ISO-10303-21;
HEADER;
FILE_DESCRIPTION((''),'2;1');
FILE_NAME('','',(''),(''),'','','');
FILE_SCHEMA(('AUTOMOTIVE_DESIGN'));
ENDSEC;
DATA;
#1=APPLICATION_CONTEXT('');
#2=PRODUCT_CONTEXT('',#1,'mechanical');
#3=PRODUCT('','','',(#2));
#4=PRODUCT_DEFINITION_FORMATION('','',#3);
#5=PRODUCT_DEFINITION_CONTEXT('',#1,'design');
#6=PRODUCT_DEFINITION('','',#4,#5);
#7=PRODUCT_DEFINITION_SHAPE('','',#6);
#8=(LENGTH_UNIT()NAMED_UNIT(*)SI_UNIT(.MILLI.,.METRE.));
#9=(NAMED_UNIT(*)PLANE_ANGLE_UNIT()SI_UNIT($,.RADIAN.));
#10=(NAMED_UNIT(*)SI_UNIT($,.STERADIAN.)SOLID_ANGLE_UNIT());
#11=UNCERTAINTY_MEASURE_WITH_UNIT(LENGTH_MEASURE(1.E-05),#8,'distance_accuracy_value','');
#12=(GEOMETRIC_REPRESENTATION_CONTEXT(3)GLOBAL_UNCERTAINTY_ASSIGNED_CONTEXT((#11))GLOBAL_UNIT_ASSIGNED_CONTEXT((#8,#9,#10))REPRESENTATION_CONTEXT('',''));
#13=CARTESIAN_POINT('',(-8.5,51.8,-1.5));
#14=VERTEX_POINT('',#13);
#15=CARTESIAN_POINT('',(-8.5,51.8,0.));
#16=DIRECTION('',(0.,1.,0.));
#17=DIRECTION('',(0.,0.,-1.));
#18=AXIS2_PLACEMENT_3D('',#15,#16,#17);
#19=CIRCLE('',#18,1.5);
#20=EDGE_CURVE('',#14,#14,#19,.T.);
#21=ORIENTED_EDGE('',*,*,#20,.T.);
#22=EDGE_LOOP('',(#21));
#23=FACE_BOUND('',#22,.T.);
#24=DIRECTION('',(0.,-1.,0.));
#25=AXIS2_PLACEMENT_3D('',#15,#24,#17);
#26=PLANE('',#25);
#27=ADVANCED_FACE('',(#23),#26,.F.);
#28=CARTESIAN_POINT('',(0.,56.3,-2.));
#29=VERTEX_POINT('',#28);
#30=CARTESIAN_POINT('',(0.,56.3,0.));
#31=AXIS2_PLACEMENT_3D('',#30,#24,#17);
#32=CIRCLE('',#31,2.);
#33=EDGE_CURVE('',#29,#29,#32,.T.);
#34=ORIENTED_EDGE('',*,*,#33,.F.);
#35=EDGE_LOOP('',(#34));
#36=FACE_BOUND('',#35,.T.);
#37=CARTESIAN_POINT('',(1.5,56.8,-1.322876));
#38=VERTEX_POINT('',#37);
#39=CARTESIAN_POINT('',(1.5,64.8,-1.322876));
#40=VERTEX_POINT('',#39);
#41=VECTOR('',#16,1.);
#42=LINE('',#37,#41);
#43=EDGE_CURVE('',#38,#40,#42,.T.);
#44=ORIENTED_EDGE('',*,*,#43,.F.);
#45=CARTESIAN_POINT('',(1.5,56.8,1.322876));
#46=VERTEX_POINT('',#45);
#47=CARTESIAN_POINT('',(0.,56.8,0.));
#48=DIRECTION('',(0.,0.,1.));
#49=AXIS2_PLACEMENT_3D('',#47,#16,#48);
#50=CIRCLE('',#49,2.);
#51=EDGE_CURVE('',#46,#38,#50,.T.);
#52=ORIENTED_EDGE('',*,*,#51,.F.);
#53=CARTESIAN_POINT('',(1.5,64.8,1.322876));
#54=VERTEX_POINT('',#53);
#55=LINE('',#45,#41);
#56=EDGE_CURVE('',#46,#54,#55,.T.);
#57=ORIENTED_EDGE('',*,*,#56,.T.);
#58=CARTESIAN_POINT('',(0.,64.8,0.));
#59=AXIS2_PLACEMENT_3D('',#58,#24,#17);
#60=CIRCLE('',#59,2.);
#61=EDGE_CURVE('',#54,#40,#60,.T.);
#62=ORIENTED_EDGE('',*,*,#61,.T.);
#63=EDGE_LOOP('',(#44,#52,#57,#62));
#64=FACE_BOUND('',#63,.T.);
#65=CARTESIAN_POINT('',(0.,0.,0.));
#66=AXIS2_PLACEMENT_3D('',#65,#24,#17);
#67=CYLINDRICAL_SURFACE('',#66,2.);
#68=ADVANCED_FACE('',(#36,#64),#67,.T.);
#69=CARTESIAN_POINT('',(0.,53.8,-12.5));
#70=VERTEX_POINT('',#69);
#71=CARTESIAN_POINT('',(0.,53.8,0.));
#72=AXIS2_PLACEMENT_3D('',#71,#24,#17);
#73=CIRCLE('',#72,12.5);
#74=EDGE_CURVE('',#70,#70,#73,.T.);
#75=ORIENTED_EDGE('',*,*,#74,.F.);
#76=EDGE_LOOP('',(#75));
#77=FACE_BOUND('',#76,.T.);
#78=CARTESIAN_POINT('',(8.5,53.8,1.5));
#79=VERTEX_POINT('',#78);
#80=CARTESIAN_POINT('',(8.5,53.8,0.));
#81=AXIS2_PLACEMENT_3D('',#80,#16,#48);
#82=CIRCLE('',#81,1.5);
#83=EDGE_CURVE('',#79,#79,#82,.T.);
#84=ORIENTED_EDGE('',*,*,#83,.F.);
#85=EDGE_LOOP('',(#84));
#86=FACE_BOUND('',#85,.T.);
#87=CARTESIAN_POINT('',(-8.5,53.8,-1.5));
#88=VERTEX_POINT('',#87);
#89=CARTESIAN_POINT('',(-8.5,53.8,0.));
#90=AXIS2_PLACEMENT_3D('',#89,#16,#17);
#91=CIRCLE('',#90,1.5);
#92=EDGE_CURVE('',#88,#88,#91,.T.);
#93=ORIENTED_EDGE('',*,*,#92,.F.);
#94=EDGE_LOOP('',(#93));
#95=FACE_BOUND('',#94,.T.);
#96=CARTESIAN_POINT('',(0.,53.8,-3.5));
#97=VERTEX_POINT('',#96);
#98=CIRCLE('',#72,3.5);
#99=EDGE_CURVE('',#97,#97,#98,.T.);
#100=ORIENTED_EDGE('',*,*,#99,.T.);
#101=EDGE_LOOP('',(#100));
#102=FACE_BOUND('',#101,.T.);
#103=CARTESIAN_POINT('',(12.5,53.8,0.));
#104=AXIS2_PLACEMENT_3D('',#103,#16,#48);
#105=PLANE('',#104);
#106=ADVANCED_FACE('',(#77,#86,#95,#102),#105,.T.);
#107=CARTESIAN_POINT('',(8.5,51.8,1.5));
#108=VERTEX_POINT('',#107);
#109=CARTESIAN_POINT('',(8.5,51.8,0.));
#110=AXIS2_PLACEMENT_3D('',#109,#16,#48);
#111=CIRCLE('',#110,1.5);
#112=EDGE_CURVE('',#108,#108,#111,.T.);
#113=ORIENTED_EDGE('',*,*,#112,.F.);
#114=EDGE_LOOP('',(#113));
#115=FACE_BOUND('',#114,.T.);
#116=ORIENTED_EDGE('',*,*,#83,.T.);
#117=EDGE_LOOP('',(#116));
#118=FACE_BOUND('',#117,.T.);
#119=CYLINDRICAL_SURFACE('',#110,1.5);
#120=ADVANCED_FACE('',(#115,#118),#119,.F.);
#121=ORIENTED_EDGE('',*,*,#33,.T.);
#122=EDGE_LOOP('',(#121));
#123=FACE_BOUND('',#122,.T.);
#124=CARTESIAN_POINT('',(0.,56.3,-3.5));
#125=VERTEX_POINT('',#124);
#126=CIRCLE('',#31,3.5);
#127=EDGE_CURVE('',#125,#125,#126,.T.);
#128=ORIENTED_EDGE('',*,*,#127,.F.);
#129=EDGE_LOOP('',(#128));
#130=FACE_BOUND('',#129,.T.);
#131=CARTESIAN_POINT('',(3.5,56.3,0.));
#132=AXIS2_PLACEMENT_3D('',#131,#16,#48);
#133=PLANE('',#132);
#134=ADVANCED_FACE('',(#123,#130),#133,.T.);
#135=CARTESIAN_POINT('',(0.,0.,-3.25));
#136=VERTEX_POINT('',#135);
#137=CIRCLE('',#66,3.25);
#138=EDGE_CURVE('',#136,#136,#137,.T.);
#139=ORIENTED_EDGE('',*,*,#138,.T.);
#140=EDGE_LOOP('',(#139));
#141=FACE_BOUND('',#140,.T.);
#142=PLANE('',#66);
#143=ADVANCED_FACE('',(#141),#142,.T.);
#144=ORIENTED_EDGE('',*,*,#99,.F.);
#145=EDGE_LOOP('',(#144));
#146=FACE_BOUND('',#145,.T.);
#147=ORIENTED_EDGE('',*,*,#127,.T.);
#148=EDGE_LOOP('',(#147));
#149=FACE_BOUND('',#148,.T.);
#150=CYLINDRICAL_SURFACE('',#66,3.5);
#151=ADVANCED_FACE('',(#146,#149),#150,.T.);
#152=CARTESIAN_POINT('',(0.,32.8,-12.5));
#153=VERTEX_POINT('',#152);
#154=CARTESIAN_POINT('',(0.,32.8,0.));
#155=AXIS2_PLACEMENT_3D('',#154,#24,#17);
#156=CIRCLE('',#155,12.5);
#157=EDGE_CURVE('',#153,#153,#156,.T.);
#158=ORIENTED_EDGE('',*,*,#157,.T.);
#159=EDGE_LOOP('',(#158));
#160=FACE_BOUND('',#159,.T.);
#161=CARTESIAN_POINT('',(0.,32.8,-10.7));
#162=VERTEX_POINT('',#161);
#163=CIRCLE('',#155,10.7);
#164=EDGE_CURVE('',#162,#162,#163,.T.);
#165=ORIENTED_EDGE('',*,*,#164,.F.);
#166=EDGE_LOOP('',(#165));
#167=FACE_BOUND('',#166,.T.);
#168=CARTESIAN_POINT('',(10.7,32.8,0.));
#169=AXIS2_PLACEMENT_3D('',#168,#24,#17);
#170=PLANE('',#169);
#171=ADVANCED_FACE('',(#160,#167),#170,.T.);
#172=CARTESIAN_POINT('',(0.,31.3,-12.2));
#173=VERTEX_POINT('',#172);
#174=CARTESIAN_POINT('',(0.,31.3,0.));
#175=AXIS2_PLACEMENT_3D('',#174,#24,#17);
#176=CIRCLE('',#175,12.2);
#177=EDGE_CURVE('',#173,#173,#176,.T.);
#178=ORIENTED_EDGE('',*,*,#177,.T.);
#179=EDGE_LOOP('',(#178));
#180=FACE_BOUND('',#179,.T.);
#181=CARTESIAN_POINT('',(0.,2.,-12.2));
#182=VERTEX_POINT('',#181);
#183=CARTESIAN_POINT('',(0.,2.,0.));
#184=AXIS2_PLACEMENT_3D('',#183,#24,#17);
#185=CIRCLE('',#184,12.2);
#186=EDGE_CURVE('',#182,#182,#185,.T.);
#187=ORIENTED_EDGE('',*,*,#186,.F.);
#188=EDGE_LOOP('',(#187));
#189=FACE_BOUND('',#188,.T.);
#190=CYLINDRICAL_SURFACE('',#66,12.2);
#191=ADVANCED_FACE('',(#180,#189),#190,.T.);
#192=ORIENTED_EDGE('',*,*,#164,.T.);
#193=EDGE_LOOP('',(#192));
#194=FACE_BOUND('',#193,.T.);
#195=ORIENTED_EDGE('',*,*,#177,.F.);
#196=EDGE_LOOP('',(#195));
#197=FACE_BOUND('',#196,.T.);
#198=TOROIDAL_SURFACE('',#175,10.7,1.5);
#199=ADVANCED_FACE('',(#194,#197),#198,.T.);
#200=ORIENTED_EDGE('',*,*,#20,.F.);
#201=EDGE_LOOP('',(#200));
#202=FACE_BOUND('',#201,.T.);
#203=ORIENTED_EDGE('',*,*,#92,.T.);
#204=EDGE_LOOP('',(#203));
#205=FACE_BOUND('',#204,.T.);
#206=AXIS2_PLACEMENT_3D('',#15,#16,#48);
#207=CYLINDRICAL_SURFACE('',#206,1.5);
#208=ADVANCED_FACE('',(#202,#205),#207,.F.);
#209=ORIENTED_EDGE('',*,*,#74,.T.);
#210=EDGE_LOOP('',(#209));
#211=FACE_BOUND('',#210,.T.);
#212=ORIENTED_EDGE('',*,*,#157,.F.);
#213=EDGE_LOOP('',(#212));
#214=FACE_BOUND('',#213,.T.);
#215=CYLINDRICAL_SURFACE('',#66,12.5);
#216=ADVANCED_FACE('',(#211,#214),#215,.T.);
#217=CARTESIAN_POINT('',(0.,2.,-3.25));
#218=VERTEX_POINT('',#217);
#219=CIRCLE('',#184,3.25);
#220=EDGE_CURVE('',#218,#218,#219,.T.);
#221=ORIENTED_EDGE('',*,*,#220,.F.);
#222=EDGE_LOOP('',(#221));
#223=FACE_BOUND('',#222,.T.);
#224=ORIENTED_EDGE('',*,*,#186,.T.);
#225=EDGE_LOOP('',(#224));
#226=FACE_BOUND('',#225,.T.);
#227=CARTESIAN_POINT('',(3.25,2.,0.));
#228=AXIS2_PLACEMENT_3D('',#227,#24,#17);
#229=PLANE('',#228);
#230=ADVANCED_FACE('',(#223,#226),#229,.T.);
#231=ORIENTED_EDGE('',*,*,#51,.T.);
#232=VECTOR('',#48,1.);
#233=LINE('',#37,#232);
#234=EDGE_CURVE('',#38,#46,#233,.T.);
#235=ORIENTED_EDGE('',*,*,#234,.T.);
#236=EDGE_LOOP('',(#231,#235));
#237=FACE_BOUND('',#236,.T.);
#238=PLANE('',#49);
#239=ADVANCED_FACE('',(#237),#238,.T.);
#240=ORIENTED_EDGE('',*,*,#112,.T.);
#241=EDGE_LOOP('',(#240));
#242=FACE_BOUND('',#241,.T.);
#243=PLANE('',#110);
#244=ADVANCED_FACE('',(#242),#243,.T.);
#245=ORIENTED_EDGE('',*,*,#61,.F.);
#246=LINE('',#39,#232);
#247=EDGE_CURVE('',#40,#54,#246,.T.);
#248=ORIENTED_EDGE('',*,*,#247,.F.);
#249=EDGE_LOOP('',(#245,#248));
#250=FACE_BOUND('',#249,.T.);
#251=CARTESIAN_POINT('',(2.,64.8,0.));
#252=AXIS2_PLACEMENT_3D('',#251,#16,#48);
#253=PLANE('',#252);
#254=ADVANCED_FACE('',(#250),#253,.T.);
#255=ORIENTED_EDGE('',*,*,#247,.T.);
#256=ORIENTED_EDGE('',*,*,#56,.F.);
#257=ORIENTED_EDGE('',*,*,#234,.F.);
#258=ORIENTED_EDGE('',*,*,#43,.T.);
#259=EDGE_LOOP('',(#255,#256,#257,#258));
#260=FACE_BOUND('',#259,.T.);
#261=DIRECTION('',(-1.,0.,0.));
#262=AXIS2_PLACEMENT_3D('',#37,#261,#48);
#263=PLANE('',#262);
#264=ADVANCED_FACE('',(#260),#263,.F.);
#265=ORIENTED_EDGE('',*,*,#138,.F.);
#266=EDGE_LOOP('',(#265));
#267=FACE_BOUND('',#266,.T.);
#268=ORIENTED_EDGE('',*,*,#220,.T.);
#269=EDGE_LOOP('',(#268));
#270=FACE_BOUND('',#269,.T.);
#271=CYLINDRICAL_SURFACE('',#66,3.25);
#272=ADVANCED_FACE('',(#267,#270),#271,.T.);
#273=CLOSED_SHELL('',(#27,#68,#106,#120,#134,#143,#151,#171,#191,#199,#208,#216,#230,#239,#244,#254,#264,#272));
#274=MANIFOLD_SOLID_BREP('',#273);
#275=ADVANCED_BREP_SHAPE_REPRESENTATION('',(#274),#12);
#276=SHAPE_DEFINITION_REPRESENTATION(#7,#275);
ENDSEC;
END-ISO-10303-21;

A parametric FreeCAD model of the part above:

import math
import FreeCAD as App
import Part
import Sketcher

doc = App.newDocument("Part")
body = doc.addObject("PartDesign::Body", "Body")

sketch1 = body.newObject("Sketcher::SketchObject", "Sketch")
sketch1.AttachmentSupport = (doc.getObject("XY_Plane"), [""])
sketch1.MapMode = "FlatFace"
sketch1.addGeometry(Part.LineSegment(App.Vector(0, 0, 0), App.Vector(3.25, 0, 0)), False)
sketch1.addGeometry(Part.LineSegment(App.Vector(3.25, 0, 0), App.Vector(3.25, 2, 0)), False)
sketch1.addGeometry(Part.LineSegment(App.Vector(3.25, 2, 0), App.Vector(12.2, 2, 0)), False)
sketch1.addGeometry(Part.LineSegment(App.Vector(12.2, 2, 0), App.Vector(12.2, 31.3, 0)), False)
sketch1.addGeometry(Part.ArcOfCircle(Part.Circle(App.Vector(10.7, 31.3, 0), App.Vector(0, 0, 1), 1.5), math.radians(0), math.radians(90)), False)
sketch1.addGeometry(Part.LineSegment(App.Vector(10.7, 32.8, 0), App.Vector(12.5, 32.8, 0)), False)
sketch1.addGeometry(Part.LineSegment(App.Vector(12.5, 32.8, 0), App.Vector(12.5, 53.8, 0)), False)
sketch1.addGeometry(Part.LineSegment(App.Vector(12.5, 53.8, 0), App.Vector(3.5, 53.8, 0)), False)
sketch1.addGeometry(Part.LineSegment(App.Vector(3.5, 53.8, 0), App.Vector(3.5, 56.3, 0)), False)
sketch1.addGeometry(Part.LineSegment(App.Vector(3.5, 56.3, 0), App.Vector(2, 56.3, 0)), False)
sketch1.addGeometry(Part.LineSegment(App.Vector(2, 56.3, 0), App.Vector(2, 64.8, 0)), False)
sketch1.addGeometry(Part.LineSegment(App.Vector(2, 64.8, 0), App.Vector(0, 64.8, 0)), False)
sketch1.addGeometry(Part.LineSegment(App.Vector(0, 64.8, 0), App.Vector(0, 0, 0)), False)
sketch1.addConstraint(Sketcher.Constraint("Coincident", 0, 2, 1, 1))
sketch1.addConstraint(Sketcher.Constraint("Coincident", 1, 2, 2, 1))
sketch1.addConstraint(Sketcher.Constraint("Coincident", 2, 2, 3, 1))
sketch1.addConstraint(Sketcher.Constraint("Tangent", 3, 2, 4, 1))
sketch1.addConstraint(Sketcher.Constraint("Tangent", 4, 2, 5, 1))
sketch1.addConstraint(Sketcher.Constraint("Coincident", 5, 2, 6, 1))
sketch1.addConstraint(Sketcher.Constraint("Coincident", 6, 2, 7, 1))
sketch1.addConstraint(Sketcher.Constraint("Coincident", 7, 2, 8, 1))
sketch1.addConstraint(Sketcher.Constraint("Coincident", 8, 2, 9, 1))
sketch1.addConstraint(Sketcher.Constraint("Coincident", 9, 2, 10, 1))
sketch1.addConstraint(Sketcher.Constraint("Coincident", 10, 2, 11, 1))
sketch1.addConstraint(Sketcher.Constraint("Coincident", 11, 2, 12, 1))
sketch1.addConstraint(Sketcher.Constraint("Coincident", 12, 2, 0, 1))
sketch1.addConstraint(Sketcher.Constraint("Horizontal", 0))
sketch1.addConstraint(Sketcher.Constraint("Vertical", 1))
sketch1.addConstraint(Sketcher.Constraint("Horizontal", 2))
sketch1.addConstraint(Sketcher.Constraint("Vertical", 3))
sketch1.addConstraint(Sketcher.Constraint("Horizontal", 5))
sketch1.addConstraint(Sketcher.Constraint("Vertical", 6))
sketch1.addConstraint(Sketcher.Constraint("Horizontal", 7))
sketch1.addConstraint(Sketcher.Constraint("Vertical", 8))
sketch1.addConstraint(Sketcher.Constraint("Horizontal", 9))
sketch1.addConstraint(Sketcher.Constraint("Vertical", 10))
sketch1.addConstraint(Sketcher.Constraint("Horizontal", 11))
sketch1.addConstraint(Sketcher.Constraint("Vertical", 12))
sketch1.addConstraint(Sketcher.Constraint("Coincident", 12, 2, -1, 1))
sketch1.addConstraint(Sketcher.Constraint("Equal", 11, 1))
sketch1.addConstraint(Sketcher.Constraint("Radius", 4, 1.5))
sketch1.addConstraint(Sketcher.Constraint("DistanceX", 7, 2, 7, 1, 9.0))
sketch1.addConstraint(Sketcher.Constraint("DistanceX", 11, 2, 11, 1, 2.0))
sketch1.addConstraint(Sketcher.Constraint("DistanceY", 6, 1, 6, 2, 21.0))
sketch1.addConstraint(Sketcher.Constraint("DistanceX", 5, 1, 5, 2, 1.8))
sketch1.addConstraint(Sketcher.Constraint("DistanceX", 9, 2, 9, 1, 1.5))
sketch1.addConstraint(Sketcher.Constraint("DistanceY", 3, 1, 3, 2, 29.3))
sketch1.addConstraint(Sketcher.Constraint("DistanceY", 8, 1, 8, 2, 2.5))
sketch1.addConstraint(Sketcher.Constraint("DistanceY", 10, 1, 10, 2, 8.5))
sketch1.addConstraint(Sketcher.Constraint("DistanceX", 0, 1, 0, 2, 3.25))
revolution = body.newObject("PartDesign::Revolution", "Revolution")
revolution.Profile = sketch1
revolution.ReferenceAxis = (sketch1, ["V_Axis"])
revolution.Angle = 360

sketch2 = body.newObject("Sketcher::SketchObject", "Sketch001")
sketch2.AttachmentSupport = (doc.getObject("XZ_Plane"), [""])
sketch2.MapMode = "FlatFace"
sketch2.AttachmentOffset = App.Placement(App.Vector(0, 0, -64.8), App.Rotation())
sketch2.addGeometry(Part.LineSegment(App.Vector(1.5, -1.322876, 0), App.Vector(1.5, 1.322876, 0)), False)
sketch2.addGeometry(Part.ArcOfCircle(Part.Circle(App.Vector(0, 0, 0), App.Vector(0, 0, 1), 2), math.radians(-41.409622), math.radians(41.409622)), False)
sketch2.addConstraint(Sketcher.Constraint("Coincident", 0, 1, 1, 1))
sketch2.addConstraint(Sketcher.Constraint("Coincident", 1, 2, 0, 2))
sketch2.addConstraint(Sketcher.Constraint("Vertical", 0))
sketch2.addConstraint(Sketcher.Constraint("Coincident", 1, 3, -1, 1))
sketch2.addConstraint(Sketcher.Constraint("Radius", 1, 2.0))
sketch2.addConstraint(Sketcher.Constraint("DistanceX", -1, 1, 0, 1, 1.5))
pocket1 = body.newObject("PartDesign::Pocket", "Pocket")
pocket1.Profile = sketch2
pocket1.Length = 8
pocket1.Reversed = True

sketch3 = body.newObject("Sketcher::SketchObject", "Sketch002")
sketch3.AttachmentSupport = (doc.getObject("XZ_Plane"), [""])
sketch3.MapMode = "FlatFace"
sketch3.AttachmentOffset = App.Placement(App.Vector(0, 0, -53.8), App.Rotation())
sketch3.addGeometry(Part.Circle(App.Vector(8.5, 0, 0), App.Vector(0, 0, 1), 1.5), False)
sketch3.addGeometry(Part.Circle(App.Vector(-8.5, 0, 0), App.Vector(0, 0, 1), 1.5), False)
sketch3.addConstraint(Sketcher.Constraint("Equal", 0, 1))
sketch3.addConstraint(Sketcher.Constraint("Symmetric", 0, 3, 1, 3, -1, 1))
sketch3.addConstraint(Sketcher.Constraint("PointOnObject", 0, 3, -1))
sketch3.addConstraint(Sketcher.Constraint("Diameter", 0, 3.0))
sketch3.addConstraint(Sketcher.Constraint("DistanceX", 1, 3, 0, 3, 17.0))
pocket2 = body.newObject("PartDesign::Pocket", "Pocket001")
pocket2.Profile = sketch3
pocket2.Length = 2
pocket2.Reversed = True

doc.recompute()
